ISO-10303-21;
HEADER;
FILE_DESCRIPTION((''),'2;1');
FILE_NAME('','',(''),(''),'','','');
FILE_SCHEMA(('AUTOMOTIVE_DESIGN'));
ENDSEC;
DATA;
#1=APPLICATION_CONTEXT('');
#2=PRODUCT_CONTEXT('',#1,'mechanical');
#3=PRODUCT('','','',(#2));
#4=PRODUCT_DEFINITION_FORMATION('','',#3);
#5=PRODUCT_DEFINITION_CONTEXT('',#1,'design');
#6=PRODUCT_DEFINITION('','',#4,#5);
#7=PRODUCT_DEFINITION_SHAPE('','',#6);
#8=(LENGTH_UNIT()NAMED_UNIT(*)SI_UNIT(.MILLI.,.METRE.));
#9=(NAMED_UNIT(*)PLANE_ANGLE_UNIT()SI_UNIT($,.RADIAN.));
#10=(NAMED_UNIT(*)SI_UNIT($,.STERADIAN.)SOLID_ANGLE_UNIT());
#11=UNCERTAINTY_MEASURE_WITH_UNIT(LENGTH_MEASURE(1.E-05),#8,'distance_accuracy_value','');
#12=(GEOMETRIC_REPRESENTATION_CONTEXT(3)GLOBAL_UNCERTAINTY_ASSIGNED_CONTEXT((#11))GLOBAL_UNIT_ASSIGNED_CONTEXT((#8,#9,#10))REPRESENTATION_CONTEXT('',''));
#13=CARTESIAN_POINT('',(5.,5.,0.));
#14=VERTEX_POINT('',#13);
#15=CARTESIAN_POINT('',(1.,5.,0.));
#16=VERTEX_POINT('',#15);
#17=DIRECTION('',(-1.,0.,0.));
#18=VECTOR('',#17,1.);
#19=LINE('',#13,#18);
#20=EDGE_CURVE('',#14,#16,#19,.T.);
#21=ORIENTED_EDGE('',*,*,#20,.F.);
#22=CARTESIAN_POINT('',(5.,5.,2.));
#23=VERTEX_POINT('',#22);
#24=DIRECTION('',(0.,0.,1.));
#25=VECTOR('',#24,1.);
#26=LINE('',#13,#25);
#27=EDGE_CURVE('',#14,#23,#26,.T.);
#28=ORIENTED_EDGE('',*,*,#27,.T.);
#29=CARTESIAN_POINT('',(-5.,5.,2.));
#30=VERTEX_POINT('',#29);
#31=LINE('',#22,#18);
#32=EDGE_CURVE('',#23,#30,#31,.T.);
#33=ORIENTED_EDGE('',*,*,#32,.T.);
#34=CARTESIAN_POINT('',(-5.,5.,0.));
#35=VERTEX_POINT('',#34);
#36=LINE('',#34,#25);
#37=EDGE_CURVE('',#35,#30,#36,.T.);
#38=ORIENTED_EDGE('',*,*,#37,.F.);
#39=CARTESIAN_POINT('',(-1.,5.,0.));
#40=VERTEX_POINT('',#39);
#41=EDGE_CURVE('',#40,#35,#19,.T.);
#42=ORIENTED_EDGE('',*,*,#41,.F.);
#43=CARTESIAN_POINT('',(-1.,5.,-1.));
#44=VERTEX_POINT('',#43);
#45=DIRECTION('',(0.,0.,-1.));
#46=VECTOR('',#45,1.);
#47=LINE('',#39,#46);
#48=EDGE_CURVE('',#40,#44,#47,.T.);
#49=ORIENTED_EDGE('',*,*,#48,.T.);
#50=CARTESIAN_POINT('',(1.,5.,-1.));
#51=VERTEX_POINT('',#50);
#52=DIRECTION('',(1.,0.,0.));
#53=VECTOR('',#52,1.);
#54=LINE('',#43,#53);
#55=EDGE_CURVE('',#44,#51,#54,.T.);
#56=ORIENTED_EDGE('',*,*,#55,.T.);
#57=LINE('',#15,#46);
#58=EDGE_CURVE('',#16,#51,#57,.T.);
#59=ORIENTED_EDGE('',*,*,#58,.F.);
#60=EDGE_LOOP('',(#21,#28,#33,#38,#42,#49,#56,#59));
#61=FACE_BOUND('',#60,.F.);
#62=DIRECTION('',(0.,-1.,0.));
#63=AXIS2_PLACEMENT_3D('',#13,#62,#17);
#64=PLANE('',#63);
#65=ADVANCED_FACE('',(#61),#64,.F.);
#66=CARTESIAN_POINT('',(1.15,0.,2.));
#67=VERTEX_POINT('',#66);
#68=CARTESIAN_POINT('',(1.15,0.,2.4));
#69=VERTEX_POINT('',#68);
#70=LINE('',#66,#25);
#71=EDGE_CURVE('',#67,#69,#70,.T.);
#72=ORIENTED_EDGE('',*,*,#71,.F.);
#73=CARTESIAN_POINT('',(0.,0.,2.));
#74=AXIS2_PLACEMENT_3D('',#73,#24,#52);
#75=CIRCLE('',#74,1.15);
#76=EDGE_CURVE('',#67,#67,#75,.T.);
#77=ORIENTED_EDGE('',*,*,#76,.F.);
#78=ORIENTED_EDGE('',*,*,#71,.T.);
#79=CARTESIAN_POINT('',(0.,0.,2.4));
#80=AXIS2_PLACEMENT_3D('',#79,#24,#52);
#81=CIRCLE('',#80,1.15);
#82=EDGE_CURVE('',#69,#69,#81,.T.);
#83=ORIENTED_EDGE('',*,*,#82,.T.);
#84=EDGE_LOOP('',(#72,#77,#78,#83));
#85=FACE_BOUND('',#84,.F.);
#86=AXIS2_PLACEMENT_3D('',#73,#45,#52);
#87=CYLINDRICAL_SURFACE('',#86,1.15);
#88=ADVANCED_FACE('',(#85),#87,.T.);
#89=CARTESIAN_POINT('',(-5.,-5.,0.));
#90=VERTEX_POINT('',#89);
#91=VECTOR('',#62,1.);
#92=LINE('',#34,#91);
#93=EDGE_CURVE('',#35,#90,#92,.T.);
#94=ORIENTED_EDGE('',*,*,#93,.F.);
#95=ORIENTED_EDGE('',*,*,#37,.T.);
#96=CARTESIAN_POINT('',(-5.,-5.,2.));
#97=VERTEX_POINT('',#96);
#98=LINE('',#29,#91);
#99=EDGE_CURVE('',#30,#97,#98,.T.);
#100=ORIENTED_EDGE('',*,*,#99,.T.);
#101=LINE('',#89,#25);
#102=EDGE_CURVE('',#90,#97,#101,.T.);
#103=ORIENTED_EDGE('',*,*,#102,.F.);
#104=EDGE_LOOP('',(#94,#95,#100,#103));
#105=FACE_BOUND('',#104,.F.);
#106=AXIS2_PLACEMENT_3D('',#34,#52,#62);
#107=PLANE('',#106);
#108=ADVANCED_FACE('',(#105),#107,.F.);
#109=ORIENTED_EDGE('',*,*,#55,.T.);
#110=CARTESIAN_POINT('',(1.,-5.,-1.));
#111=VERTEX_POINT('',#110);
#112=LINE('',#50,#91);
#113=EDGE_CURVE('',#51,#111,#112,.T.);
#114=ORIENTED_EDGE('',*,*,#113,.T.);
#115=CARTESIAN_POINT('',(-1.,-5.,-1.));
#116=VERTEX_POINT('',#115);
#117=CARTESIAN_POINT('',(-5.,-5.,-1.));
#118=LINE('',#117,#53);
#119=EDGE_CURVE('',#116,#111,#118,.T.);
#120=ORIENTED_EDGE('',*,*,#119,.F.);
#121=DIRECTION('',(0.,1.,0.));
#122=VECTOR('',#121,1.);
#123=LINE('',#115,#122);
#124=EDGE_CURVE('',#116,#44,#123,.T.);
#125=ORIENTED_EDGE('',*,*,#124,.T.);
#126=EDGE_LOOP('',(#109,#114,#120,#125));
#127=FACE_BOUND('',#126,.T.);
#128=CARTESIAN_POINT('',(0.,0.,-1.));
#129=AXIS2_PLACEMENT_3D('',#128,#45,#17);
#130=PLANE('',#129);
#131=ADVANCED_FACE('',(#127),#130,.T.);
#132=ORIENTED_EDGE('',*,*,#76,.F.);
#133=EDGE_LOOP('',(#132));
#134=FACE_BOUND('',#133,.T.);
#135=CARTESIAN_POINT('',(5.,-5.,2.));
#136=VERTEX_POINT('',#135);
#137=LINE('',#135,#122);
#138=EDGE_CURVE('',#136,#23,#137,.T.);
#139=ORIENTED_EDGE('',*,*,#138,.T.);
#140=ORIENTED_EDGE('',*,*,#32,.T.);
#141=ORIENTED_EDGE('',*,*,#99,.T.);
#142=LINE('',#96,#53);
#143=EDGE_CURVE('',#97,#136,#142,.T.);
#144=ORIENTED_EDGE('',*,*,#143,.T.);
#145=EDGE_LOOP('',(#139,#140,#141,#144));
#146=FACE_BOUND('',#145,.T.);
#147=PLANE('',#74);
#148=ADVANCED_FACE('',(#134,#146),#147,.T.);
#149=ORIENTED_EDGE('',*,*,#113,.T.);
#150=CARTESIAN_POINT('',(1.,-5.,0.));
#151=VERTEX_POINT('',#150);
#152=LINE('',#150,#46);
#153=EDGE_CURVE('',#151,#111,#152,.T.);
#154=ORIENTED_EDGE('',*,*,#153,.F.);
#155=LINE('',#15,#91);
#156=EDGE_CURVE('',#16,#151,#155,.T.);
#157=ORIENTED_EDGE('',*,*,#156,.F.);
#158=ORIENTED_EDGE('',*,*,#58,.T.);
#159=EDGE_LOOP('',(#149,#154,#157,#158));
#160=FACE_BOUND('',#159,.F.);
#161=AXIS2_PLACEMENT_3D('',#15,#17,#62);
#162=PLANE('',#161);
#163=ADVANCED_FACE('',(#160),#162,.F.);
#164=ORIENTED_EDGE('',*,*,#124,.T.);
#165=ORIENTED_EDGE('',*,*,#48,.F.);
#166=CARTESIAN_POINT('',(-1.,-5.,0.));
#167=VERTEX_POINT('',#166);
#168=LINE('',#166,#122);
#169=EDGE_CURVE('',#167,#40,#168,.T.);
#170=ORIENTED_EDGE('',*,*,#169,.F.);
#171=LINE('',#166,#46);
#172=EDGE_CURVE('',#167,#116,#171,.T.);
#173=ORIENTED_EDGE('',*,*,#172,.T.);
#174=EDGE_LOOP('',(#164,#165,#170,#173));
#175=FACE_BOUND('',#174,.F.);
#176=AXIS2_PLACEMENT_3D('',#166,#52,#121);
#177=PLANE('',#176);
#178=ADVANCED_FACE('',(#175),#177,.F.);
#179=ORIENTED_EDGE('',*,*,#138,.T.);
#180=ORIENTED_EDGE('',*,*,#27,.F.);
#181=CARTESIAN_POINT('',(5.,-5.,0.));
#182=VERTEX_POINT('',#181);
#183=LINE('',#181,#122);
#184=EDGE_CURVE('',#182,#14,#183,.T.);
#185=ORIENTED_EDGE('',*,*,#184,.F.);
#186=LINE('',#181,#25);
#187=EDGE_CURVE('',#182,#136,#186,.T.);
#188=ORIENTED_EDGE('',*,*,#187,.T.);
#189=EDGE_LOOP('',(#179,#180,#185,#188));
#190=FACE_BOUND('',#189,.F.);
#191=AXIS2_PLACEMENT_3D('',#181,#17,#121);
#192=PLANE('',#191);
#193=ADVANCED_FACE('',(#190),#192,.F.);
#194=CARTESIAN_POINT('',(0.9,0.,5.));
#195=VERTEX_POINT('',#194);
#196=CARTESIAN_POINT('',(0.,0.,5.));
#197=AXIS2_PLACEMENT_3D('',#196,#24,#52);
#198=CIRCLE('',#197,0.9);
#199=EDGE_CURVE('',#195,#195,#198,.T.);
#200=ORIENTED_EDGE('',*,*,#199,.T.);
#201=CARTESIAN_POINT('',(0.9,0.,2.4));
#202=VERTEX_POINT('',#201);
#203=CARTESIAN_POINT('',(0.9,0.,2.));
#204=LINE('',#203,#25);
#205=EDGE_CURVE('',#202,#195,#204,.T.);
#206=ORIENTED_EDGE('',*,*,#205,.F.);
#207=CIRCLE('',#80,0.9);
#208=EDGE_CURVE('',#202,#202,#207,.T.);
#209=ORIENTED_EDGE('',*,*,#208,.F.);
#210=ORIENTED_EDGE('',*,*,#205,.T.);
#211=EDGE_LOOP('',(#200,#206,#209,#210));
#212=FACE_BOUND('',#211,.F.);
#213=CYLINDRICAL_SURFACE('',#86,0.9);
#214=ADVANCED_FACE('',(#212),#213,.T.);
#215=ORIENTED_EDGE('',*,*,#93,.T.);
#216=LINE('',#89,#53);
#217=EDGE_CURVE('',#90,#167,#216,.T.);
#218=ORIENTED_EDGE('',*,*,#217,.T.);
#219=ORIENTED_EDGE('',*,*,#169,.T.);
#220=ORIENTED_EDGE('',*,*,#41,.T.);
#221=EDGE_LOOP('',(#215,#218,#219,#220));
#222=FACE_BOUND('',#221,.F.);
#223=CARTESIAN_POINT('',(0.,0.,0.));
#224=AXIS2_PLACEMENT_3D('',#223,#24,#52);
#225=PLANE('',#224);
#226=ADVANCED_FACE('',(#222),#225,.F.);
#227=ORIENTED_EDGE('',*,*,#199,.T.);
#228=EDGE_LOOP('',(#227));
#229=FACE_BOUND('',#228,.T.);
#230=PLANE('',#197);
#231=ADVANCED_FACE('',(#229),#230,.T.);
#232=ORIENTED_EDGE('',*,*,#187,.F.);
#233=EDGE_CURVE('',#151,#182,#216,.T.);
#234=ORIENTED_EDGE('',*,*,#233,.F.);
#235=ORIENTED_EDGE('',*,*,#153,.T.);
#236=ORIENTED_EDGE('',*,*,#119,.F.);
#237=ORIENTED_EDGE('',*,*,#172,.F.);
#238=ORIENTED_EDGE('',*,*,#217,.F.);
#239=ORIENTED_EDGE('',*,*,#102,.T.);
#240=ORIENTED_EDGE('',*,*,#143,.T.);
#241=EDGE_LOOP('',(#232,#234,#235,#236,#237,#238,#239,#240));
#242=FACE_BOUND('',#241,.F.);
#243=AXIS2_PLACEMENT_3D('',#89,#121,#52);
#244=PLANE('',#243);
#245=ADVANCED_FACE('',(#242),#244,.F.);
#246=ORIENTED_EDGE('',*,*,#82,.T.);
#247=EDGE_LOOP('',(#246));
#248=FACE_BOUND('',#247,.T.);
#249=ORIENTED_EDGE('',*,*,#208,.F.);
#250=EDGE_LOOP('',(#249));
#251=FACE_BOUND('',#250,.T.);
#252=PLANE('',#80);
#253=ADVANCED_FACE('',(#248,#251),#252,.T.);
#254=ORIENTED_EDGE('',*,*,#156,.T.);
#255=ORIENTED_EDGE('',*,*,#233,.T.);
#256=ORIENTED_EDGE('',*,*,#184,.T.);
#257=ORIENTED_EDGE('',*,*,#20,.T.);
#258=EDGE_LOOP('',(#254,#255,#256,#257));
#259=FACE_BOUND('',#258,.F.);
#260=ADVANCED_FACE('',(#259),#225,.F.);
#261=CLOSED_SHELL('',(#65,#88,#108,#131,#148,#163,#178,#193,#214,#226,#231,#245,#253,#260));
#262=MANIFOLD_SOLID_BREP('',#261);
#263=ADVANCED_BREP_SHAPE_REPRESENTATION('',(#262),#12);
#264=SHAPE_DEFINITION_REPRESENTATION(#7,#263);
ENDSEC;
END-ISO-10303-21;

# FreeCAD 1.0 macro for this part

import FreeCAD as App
import Part
import Sketcher

V = App.Vector

doc = App.newDocument("Part")
body = doc.addObject("PartDesign::Body", "Body")

# Sketch on XY plane
sketch1 = doc.addObject("Sketcher::SketchObject", "Sketch")
body.addObject(sketch1)
sketch1.AttachmentSupport = (doc.XY_Plane, [""])
sketch1.MapMode = "FlatFace"
sketch1.addGeometry([
    Part.LineSegment(V(-5, 5, 0), V(-5, -5, 0)),
    Part.LineSegment(V(-5, -5, 0), V(5, -5, 0)),
    Part.LineSegment(V(5, -5, 0), V(5, 5, 0)),
    Part.LineSegment(V(5, 5, 0), V(-5, 5, 0)),
], False)
sketch1.addConstraint([
    Sketcher.Constraint("Coincident", 0, 2, 1, 1),
    Sketcher.Constraint("Coincident", 1, 2, 2, 1),
    Sketcher.Constraint("Coincident", 2, 2, 3, 1),
    Sketcher.Constraint("Coincident", 3, 2, 0, 1),
    Sketcher.Constraint("Vertical", 0),
    Sketcher.Constraint("Horizontal", 1),
    Sketcher.Constraint("Vertical", 2),
    Sketcher.Constraint("Horizontal", 3),
    Sketcher.Constraint("Symmetric", 0, 2, 2, 2, -1, 1),
    Sketcher.Constraint("Equal", 3, 0),
    Sketcher.Constraint("DistanceX", 1, 1, 1, 2, 10.0),
])
pad1 = doc.addObject("PartDesign::Pad", "Pad")
body.addObject(pad1)
pad1.Profile = sketch1
pad1.Length = 2

# Sketch on XY plane
sketch2 = doc.addObject("Sketcher::SketchObject", "Sketch001")
body.addObject(sketch2)
sketch2.AttachmentSupport = (doc.XY_Plane, [""])
sketch2.MapMode = "FlatFace"
sketch2.AttachmentOffset = App.Placement(V(0, 0, 2), App.Rotation())
sketch2.addGeometry(Part.Circle(V(0, 0, 0), V(0, 0, 1), 0.9), False)
sketch2.addConstraint([
    Sketcher.Constraint("Coincident", 0, 3, -1, 1),
    Sketcher.Constraint("Diameter", 0, 1.8),
])
pad2 = doc.addObject("PartDesign::Pad", "Pad001")
body.addObject(pad2)
pad2.Profile = sketch2
pad2.Length = 3

# Sketch on XY plane
sketch3 = doc.addObject("Sketcher::SketchObject", "Sketch002")
body.addObject(sketch3)
sketch3.AttachmentSupport = (doc.XY_Plane, [""])
sketch3.MapMode = "FlatFace"
sketch3.addGeometry([
    Part.LineSegment(V(1, -5, 0), V(-1, -5, 0)),
    Part.LineSegment(V(-1, -5, 0), V(-1, 5, 0)),
    Part.LineSegment(V(-1, 5, 0), V(1, 5, 0)),
    Part.LineSegment(V(1, 5, 0), V(1, -5, 0)),
], False)
sketch3.addConstraint([
    Sketcher.Constraint("Coincident", 0, 2, 1, 1),
    Sketcher.Constraint("Coincident", 1, 2, 2, 1),
    Sketcher.Constraint("Coincident", 2, 2, 3, 1),
    Sketcher.Constraint("Coincident", 3, 2, 0, 1),
    Sketcher.Constraint("Horizontal", 0),
    Sketcher.Constraint("Vertical", 1),
    Sketcher.Constraint("Horizontal", 2),
    Sketcher.Constraint("Vertical", 3),
    Sketcher.Constraint("Symmetric", 0, 2, 2, 2, -1, 1),
    Sketcher.Constraint("DistanceX", 0, 2, 0, 1, 2.0),
    Sketcher.Constraint("DistanceY", 1, 1, 1, 2, 10.0),
])
pad3 = doc.addObject("PartDesign::Pad", "Pad002")
body.addObject(pad3)
pad3.Profile = sketch3
pad3.Length = 1
pad3.Reversed = True

# Sketch on XY plane
sketch4 = doc.addObject("Sketcher::SketchObject", "Sketch003")
body.addObject(sketch4)
sketch4.AttachmentSupport = (doc.XY_Plane, [""])
sketch4.MapMode = "FlatFace"
sketch4.AttachmentOffset = App.Placement(V(0, 0, 2), App.Rotation())
sketch4.addGeometry([
    Part.Circle(V(0, 0, 0), V(0, 0, 1), 1.15),
    Part.Circle(V(0, 0, 0), V(0, 0, 1), 0.9),
], False)
sketch4.addConstraint([
    Sketcher.Constraint("Coincident", 0, 3, -1, 1),
    Sketcher.Constraint("Coincident", 1, 3, -1, 1),
    Sketcher.Constraint("Diameter", 0, 2.3),
    Sketcher.Constraint("Diameter", 1, 1.8),
])
pad4 = doc.addObject("PartDesign::Pad", "Pad003")
body.addObject(pad4)
pad4.Profile = sketch4
pad4.Length = 0.4

doc.recompute()
